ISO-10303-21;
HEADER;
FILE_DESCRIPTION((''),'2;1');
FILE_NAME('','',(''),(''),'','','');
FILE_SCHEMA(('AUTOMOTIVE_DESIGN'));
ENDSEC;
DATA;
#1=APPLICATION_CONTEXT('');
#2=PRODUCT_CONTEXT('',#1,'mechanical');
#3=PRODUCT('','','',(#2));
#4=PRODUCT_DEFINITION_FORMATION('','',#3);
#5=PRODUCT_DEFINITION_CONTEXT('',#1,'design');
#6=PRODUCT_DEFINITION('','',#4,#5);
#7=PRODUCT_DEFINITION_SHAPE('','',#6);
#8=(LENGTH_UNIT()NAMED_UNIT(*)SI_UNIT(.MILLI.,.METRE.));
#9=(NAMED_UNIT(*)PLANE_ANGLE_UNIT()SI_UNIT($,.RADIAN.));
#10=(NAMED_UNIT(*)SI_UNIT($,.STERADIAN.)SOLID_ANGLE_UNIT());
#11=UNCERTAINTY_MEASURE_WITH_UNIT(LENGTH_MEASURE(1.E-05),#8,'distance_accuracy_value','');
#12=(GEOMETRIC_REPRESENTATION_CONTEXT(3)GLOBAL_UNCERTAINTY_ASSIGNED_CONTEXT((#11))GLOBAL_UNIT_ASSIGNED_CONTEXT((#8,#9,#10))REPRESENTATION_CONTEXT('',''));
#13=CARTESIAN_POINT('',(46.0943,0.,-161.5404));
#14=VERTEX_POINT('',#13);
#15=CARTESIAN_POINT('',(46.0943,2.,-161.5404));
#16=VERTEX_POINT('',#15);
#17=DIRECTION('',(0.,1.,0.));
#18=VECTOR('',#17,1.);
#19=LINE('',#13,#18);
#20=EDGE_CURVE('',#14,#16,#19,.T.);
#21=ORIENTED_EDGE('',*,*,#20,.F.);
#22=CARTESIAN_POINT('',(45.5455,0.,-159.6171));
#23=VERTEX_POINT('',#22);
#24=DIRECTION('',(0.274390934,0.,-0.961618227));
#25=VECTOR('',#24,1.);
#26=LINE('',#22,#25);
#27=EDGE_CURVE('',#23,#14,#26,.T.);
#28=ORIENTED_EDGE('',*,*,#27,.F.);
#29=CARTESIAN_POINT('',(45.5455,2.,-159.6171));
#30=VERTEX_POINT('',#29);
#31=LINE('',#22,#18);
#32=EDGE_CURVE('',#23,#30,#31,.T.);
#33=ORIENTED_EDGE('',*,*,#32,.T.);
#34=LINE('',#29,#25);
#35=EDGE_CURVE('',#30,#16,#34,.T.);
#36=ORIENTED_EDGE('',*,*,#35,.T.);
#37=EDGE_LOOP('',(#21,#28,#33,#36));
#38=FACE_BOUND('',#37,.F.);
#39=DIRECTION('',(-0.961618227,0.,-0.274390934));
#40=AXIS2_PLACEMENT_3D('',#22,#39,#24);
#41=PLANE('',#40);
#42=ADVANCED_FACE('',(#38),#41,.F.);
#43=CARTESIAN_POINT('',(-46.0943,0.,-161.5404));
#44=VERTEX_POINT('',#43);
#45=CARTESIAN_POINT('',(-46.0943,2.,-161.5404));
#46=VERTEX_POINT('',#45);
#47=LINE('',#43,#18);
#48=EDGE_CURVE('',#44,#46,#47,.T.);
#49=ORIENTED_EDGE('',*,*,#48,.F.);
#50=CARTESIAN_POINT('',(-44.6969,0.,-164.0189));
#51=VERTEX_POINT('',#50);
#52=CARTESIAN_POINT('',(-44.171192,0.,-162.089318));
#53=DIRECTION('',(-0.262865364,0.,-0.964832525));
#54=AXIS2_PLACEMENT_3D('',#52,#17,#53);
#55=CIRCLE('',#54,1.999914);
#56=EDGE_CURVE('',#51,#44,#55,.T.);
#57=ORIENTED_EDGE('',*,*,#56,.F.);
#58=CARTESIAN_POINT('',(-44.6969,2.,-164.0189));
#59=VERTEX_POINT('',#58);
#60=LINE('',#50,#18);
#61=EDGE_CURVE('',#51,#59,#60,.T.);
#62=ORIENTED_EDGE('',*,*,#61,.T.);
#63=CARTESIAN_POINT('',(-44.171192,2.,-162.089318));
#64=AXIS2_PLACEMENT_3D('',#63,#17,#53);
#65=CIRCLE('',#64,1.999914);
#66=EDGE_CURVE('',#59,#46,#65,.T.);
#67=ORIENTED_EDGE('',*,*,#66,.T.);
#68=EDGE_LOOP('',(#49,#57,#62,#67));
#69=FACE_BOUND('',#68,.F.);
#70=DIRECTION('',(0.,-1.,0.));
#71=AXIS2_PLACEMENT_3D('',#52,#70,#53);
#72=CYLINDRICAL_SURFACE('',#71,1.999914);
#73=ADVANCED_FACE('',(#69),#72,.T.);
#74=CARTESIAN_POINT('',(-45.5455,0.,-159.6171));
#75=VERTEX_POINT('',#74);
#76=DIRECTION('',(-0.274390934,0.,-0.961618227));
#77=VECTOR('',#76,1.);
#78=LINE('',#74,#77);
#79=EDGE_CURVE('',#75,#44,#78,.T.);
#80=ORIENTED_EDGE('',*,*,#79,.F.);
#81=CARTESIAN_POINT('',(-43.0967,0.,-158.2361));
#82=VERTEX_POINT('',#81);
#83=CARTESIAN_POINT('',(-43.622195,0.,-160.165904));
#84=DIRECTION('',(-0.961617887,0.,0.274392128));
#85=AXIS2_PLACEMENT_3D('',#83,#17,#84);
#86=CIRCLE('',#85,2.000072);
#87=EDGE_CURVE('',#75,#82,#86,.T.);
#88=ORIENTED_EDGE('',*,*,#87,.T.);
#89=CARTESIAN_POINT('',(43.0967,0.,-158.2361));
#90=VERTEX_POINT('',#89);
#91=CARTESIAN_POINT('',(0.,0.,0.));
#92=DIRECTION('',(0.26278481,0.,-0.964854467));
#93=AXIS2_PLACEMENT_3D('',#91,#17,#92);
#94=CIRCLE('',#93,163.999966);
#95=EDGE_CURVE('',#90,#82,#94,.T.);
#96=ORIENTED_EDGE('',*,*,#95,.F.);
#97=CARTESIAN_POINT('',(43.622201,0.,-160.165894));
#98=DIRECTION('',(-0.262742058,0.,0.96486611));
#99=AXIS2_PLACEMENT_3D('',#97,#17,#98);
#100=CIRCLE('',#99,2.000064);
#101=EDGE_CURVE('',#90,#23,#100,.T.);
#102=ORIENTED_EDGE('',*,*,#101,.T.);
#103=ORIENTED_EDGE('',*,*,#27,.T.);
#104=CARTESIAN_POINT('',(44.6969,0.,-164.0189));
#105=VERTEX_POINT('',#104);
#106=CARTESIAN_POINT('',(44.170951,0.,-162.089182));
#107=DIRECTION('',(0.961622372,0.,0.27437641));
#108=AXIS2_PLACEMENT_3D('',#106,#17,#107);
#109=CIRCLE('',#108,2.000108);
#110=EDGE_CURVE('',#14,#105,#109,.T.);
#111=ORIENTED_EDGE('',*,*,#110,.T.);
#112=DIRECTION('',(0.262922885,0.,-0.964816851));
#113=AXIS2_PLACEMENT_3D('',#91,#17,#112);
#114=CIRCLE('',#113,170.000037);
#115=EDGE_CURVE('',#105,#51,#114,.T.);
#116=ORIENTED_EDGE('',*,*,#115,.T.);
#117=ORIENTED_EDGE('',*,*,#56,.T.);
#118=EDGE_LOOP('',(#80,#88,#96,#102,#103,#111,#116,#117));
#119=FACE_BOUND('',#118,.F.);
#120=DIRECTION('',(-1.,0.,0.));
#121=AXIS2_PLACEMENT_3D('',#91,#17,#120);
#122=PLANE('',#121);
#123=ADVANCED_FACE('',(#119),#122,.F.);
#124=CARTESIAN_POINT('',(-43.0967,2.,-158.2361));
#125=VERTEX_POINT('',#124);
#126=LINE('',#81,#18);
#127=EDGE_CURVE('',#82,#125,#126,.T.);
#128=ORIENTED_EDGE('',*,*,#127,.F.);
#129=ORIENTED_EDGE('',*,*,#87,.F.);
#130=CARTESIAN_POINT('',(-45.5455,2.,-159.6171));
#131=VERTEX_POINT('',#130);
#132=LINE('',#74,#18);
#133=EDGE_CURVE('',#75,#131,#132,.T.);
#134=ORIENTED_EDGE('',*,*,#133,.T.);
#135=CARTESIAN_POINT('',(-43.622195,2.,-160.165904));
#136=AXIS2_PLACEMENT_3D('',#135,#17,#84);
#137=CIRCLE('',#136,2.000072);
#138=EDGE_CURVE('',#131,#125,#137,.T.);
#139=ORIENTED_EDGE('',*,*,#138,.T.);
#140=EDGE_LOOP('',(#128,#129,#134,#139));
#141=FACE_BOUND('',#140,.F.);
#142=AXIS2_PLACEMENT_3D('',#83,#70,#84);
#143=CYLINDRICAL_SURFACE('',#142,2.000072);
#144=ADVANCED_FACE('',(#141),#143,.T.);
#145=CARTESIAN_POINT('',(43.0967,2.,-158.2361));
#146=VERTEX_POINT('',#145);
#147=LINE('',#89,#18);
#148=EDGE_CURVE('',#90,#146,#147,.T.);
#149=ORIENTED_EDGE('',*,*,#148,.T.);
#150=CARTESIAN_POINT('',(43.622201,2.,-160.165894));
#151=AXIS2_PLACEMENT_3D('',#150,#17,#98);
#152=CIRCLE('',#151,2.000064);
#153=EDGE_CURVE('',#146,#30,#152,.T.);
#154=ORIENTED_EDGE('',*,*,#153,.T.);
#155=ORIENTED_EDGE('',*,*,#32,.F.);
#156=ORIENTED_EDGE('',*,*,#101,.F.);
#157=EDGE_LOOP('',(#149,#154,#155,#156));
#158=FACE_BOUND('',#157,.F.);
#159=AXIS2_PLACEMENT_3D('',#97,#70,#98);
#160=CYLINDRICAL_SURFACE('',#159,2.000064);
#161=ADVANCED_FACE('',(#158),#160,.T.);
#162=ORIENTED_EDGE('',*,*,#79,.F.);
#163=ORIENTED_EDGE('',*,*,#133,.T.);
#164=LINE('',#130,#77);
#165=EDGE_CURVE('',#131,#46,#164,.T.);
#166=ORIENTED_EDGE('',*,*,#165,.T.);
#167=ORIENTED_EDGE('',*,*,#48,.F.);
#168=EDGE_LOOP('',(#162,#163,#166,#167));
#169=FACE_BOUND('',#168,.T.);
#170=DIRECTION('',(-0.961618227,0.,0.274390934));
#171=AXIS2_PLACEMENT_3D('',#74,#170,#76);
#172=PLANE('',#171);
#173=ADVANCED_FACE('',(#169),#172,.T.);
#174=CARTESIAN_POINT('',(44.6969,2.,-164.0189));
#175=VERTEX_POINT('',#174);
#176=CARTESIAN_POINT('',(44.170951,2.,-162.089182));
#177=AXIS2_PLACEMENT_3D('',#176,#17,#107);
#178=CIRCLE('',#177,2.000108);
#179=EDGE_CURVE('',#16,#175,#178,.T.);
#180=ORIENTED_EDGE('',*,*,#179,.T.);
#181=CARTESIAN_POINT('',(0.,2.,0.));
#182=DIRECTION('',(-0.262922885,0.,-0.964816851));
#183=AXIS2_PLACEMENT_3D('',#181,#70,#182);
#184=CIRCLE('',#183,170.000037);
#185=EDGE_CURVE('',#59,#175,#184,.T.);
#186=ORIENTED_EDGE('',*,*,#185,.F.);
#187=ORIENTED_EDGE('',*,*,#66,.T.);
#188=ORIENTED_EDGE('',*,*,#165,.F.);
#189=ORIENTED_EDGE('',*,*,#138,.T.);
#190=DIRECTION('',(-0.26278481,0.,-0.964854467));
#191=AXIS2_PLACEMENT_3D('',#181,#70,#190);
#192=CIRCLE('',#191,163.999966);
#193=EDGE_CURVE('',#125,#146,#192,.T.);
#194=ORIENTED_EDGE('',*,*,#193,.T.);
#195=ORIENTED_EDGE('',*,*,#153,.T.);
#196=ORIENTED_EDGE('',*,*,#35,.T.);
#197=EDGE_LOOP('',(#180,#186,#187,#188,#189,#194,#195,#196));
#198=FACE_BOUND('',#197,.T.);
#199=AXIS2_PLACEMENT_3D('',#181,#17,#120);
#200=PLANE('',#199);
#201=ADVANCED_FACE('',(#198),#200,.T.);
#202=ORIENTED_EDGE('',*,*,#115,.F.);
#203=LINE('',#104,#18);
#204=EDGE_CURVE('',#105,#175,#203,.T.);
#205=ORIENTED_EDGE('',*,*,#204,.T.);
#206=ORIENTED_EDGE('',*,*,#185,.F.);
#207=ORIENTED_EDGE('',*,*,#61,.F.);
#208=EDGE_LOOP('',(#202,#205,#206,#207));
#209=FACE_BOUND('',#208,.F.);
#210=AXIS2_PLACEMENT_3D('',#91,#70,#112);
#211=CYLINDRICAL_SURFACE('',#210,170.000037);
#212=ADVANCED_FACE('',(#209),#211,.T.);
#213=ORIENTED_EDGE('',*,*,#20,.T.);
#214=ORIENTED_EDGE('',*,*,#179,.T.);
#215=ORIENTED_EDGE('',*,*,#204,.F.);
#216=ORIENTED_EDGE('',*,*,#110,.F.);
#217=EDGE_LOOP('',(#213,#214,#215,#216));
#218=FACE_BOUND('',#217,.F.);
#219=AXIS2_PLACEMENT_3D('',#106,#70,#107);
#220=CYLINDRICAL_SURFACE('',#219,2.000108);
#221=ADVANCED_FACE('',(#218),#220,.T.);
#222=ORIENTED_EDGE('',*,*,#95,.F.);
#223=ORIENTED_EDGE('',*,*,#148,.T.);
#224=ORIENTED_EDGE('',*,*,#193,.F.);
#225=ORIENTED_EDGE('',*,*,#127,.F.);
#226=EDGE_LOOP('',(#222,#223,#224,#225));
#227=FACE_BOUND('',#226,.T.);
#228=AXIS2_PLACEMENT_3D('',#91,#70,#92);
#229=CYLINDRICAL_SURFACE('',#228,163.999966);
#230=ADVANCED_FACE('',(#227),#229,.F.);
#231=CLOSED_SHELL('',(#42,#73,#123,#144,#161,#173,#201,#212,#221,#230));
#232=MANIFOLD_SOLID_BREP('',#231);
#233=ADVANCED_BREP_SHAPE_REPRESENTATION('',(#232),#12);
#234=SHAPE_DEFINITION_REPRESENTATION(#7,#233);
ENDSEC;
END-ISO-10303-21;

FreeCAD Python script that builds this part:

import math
import FreeCAD as App
import Part
import Sketcher
Q = App.Units.Quantity

doc = App.newDocument("Part")
body = doc.addObject("PartDesign::Body", "Body")

# Sketch on XZ plane
sketch1 = body.newObject("Sketcher::SketchObject", "Sketch")
sketch1.AttachmentSupport = (doc.getObject("XZ_Plane"), [""])
sketch1.MapMode = "FlatFace"
sketch1.addGeometry(Part.ArcOfCircle(Part.Circle(App.Vector(44.1711, -162.0892, 0), App.Vector(0, 0, 1), 1.99997), math.radians(-74.758198), math.radians(15.926507)), False)
sketch1.addGeometry(Part.ArcOfCircle(Part.Circle(App.Vector(0, 0, 0), App.Vector(0, 0, 1), 170.000037), math.radians(-105.243567), math.radians(-74.756433)), False)
sketch1.addGeometry(Part.ArcOfCircle(Part.Circle(App.Vector(-44.1711, -162.0892, 0), App.Vector(0, 0, 1), 2.000052), math.radians(164.073493), math.radians(254.758198)), False)
sketch1.addGeometry(Part.LineSegment(App.Vector(-46.0943, -161.5404, 0), App.Vector(-45.5455, -159.6171, 0)), False)
sketch1.addGeometry(Part.ArcOfCircle(Part.Circle(App.Vector(-43.6222, -160.1659, 0), App.Vector(0, 0, 1), 2.000066), math.radians(74.767243), math.radians(164.074279)), False)
sketch1.addGeometry(Part.ArcOfCircle(Part.Circle(App.Vector(0, 0, 0), App.Vector(0, 0, 1), 163.999966), math.radians(-105.235367), math.radians(-74.764633)), False)
sketch1.addGeometry(Part.ArcOfCircle(Part.Circle(App.Vector(43.6222, -160.1659, 0), App.Vector(0, 0, 1), 2.00007), math.radians(15.925721), math.radians(105.232757)), False)
sketch1.addGeometry(Part.LineSegment(App.Vector(45.5455, -159.6171, 0), App.Vector(46.0943, -161.5404, 0)), False)
sketch1.addConstraint(Sketcher.Constraint("Coincident", 0, 1, 1, 2))
sketch1.addConstraint(Sketcher.Constraint("Coincident", 1, 1, 2, 2))
sketch1.addConstraint(Sketcher.Constraint("Coincident", 2, 1, 3, 1))
sketch1.addConstraint(Sketcher.Constraint("Coincident", 3, 2, 4, 2))
sketch1.addConstraint(Sketcher.Constraint("Coincident", 4, 1, 5, 1))
sketch1.addConstraint(Sketcher.Constraint("Coincident", 5, 2, 6, 2))
sketch1.addConstraint(Sketcher.Constraint("Coincident", 6, 1, 7, 1))
sketch1.addConstraint(Sketcher.Constraint("Coincident", 7, 2, 0, 2))
sketch1.addConstraint(Sketcher.Constraint("Coincident", 1, 3, -1, 1))
sketch1.addConstraint(Sketcher.Constraint("Coincident", 5, 3, -1, 1))
sketch1.addConstraint(Sketcher.Constraint("Radius", 0, Q("2 mm")))
sketch1.addConstraint(Sketcher.Constraint("Radius", 1, Q("170 mm")))
sketch1.addConstraint(Sketcher.Constraint("Radius", 2, Q("2 mm")))
sketch1.addConstraint(Sketcher.Constraint("Radius", 4, Q("2 mm")))
sketch1.addConstraint(Sketcher.Constraint("Radius", 6, Q("2 mm")))
sketch1.addConstraint(Sketcher.Constraint("Distance", 3, Q("2 mm")))
sketch1.addConstraint(Sketcher.Constraint("Distance", 7, Q("2 mm")))
sketch1.addConstraint(Sketcher.Constraint("Radius", 5, Q("164 mm")))
sketch1.addConstraint(Sketcher.Constraint("DistanceX", -1, 1, 0, 3, Q("44.171 mm")))
sketch1.addConstraint(Sketcher.Constraint("DistanceX", 2, 3, -1, 1, Q("44.171 mm")))
sketch1.addConstraint(Sketcher.Constraint("DistanceY", 4, 3, -1, 1, Q("160.166 mm")))
sketch1.addConstraint(Sketcher.Constraint("DistanceY", 6, 3, -1, 1, Q("160.166 mm")))
sketch1.addConstraint(Sketcher.Constraint("DistanceX", 1, 1, -1, 1, Q("44.697 mm")))
sketch1.addConstraint(Sketcher.Constraint("DistanceY", 3, 2, -1, 1, Q("159.617 mm")))
sketch1.addConstraint(Sketcher.Constraint("DistanceY", 4, 1, -1, 1, Q("158.236 mm")))
sketch1.addConstraint(Sketcher.Constraint("DistanceY", 5, 2, -1, 1, Q("158.236 mm")))
sketch1.addConstraint(Sketcher.Constraint("DistanceY", 6, 1, -1, 1, Q("159.617 mm")))
sketch1.addConstraint(Sketcher.Constraint("DistanceY", 0, 1, 6, 3, Q("3.853 mm")))
pad1 = body.newObject("PartDesign::Pad", "Pad")
pad1.Profile = sketch1
pad1.Length = 2
pad1.Reversed = True

doc.recompute()
